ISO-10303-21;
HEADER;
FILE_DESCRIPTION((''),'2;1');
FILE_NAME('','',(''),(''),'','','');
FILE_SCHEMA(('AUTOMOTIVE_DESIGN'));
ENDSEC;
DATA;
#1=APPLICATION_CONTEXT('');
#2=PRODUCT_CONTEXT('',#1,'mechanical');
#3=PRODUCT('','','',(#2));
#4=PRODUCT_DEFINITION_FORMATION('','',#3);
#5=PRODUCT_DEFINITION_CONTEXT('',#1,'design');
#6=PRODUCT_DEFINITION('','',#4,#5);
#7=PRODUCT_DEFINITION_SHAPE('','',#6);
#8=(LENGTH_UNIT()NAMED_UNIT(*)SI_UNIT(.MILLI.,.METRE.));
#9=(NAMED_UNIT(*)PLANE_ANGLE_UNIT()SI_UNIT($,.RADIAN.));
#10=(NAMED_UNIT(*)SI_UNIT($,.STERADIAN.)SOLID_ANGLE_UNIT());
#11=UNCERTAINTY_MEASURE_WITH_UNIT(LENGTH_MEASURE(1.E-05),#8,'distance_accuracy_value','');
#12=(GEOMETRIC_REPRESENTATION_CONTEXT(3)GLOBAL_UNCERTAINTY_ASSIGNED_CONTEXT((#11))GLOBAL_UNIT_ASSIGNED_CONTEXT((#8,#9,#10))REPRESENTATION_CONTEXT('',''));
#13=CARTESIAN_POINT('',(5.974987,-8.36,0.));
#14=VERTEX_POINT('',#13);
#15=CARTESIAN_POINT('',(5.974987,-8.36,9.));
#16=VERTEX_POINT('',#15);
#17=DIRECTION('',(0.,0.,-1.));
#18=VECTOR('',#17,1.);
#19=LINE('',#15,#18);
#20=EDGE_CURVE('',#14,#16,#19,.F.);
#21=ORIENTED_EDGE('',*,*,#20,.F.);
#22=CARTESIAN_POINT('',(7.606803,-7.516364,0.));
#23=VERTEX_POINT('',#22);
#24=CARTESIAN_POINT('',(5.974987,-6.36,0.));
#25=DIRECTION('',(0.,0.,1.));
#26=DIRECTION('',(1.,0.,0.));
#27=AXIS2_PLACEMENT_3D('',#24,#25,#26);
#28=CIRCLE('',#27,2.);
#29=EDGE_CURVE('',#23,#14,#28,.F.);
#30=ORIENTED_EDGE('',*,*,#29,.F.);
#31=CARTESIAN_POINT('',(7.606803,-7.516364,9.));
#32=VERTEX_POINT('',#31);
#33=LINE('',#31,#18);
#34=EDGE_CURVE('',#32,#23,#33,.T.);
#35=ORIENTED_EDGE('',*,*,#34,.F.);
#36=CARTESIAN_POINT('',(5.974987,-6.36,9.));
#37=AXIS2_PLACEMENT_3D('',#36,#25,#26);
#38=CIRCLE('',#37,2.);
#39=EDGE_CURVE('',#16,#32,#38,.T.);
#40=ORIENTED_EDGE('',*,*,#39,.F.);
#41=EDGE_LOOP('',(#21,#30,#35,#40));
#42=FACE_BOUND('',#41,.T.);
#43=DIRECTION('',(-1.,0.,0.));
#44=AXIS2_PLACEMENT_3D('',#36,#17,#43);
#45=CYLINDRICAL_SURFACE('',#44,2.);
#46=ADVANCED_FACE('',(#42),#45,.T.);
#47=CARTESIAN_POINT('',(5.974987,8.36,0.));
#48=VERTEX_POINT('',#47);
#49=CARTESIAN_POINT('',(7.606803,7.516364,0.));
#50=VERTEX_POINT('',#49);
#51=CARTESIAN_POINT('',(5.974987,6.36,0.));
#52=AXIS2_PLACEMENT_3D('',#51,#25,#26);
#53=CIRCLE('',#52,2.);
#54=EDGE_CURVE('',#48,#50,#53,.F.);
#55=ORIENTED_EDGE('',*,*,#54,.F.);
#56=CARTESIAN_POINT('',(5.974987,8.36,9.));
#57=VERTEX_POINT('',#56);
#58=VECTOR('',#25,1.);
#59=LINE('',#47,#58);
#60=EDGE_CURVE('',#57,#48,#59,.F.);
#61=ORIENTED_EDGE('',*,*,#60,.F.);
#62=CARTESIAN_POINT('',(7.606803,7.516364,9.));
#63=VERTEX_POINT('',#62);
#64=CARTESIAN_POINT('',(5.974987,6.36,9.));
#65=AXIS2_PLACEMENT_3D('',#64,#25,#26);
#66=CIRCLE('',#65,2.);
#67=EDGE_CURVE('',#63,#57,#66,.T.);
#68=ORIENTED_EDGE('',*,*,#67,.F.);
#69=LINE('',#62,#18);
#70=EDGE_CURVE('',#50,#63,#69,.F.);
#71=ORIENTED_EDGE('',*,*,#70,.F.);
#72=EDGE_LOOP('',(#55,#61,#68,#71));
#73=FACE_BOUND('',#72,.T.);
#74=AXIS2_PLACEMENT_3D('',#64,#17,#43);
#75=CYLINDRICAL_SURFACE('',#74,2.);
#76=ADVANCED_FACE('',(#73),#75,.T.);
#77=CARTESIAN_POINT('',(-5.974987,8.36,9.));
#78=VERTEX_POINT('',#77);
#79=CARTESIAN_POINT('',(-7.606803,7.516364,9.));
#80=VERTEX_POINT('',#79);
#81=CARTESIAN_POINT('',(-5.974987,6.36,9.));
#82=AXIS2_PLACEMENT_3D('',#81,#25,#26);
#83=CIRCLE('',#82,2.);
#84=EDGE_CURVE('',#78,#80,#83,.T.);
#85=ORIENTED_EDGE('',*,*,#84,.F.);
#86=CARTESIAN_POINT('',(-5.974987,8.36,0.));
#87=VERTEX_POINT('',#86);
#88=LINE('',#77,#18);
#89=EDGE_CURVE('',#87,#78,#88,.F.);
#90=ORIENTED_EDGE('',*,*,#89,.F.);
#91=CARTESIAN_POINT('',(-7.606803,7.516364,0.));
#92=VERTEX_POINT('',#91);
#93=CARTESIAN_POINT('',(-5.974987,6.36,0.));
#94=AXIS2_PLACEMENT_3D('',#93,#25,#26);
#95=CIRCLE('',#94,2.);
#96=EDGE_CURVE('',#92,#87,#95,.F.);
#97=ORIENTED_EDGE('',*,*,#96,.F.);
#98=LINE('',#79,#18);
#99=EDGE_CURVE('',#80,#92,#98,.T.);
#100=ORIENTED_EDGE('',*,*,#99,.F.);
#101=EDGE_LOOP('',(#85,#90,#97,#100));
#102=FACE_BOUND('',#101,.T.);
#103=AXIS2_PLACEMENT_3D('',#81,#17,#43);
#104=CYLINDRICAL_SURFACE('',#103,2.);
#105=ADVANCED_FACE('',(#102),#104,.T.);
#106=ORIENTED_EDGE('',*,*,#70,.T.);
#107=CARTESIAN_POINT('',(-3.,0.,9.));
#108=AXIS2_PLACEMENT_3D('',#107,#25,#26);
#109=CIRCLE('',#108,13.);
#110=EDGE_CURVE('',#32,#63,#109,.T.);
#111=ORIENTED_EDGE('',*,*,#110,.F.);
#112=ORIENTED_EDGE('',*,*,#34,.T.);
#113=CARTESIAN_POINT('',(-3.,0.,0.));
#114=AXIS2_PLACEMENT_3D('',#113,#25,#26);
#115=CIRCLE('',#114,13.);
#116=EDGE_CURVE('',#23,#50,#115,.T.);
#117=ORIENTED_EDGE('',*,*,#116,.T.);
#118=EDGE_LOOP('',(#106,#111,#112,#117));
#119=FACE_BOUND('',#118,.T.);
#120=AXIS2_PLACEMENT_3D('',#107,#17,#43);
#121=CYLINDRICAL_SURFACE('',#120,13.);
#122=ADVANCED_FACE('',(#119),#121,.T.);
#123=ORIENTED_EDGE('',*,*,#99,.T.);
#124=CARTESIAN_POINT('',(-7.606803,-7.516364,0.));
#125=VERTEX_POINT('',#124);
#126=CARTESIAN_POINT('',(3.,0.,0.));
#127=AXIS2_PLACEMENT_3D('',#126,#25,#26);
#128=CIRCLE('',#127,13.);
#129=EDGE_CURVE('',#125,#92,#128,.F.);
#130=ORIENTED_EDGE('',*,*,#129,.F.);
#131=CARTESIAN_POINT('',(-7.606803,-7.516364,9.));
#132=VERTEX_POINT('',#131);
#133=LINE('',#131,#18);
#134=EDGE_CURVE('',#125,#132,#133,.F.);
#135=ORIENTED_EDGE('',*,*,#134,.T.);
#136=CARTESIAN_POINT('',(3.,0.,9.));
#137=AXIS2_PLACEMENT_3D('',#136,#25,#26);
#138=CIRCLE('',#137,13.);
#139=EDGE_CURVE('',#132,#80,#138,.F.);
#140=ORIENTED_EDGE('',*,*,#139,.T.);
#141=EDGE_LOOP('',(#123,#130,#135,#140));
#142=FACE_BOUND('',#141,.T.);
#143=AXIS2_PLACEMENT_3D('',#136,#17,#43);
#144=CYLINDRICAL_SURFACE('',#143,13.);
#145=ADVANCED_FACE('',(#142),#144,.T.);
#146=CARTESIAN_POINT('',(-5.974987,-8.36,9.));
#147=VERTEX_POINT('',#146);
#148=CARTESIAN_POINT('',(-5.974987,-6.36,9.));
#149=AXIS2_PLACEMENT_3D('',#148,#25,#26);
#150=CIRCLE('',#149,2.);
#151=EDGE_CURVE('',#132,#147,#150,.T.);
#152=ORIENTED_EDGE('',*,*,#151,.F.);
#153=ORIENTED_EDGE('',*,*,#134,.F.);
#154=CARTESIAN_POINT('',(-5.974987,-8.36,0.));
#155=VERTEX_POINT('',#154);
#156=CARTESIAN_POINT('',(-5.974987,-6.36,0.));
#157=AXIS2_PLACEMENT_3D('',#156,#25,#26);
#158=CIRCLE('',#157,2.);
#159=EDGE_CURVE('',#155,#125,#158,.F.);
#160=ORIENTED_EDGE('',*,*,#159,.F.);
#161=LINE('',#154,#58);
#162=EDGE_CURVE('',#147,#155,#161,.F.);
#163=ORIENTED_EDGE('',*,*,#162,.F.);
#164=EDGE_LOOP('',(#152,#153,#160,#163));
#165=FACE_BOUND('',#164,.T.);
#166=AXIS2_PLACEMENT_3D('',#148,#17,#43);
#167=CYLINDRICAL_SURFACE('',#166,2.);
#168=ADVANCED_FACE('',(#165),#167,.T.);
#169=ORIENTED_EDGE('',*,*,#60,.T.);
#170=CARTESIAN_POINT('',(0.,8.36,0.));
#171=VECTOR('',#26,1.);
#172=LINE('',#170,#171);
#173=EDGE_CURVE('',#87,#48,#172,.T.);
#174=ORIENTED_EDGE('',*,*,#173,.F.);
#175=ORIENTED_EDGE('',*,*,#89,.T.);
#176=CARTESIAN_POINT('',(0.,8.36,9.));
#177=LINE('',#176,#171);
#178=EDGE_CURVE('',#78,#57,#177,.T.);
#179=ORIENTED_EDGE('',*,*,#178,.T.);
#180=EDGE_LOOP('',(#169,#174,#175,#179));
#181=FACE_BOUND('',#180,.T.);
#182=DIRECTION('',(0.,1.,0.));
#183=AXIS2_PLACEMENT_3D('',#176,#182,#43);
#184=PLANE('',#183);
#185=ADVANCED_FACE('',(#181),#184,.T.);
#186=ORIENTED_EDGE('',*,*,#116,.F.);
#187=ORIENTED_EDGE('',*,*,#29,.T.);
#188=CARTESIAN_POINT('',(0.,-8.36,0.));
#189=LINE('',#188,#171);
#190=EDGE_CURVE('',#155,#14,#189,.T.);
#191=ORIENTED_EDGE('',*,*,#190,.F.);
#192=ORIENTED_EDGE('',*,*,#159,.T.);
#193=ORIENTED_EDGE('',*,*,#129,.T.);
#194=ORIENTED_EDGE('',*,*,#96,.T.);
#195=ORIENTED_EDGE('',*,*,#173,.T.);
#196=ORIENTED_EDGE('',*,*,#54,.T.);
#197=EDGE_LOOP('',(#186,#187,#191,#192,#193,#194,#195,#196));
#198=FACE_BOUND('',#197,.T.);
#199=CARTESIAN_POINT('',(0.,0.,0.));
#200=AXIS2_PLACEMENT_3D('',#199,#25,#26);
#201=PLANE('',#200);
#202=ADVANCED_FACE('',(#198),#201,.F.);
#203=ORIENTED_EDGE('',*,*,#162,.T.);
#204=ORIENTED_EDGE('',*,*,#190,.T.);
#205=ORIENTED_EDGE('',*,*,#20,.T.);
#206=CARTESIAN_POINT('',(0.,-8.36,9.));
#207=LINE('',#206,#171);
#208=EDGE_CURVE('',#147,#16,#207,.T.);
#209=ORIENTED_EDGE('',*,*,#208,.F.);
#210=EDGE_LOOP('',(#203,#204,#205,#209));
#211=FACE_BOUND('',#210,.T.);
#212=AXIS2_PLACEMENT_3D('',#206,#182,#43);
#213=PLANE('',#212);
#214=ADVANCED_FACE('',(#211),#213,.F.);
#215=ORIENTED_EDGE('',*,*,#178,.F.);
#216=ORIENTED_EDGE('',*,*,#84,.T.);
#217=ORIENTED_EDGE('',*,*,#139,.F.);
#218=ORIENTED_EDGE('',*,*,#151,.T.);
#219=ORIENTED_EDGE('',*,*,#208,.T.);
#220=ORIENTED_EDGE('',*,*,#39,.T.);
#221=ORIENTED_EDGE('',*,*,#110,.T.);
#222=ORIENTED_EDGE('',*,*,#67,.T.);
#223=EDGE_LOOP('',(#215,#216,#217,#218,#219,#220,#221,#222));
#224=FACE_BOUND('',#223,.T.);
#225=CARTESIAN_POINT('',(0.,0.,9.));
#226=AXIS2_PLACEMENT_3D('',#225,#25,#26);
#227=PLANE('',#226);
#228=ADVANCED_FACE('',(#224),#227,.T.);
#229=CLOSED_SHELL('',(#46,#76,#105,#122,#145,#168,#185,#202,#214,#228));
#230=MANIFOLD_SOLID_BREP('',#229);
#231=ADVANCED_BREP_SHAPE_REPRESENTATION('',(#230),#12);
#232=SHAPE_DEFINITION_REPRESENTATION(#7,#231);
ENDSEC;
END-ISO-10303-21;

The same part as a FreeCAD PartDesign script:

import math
import FreeCAD as App
import Part
import Sketcher
from FreeCAD import Vector
Q = App.Units.Quantity


def edges_at(feature, points):
    """Names of the edges that pass closest to the given points."""
    edges = feature.Shape.Edges
    near = lambda p: min(range(len(edges)), key=lambda i: edges[i].distToShape(Part.Vertex(*p))[0])
    return sorted({f"Edge{near(p) + 1}" for p in points})

doc = App.newDocument("Part")
params = doc.addObject("Spreadsheet::Sheet", "Params")
for row, (alias, value) in enumerate([
    ("sketch1_radius", "13 mm"),
    ("pad1_length", "9 mm"),
    ("fillet_radius", "2 mm"),
    ("fillet2_radius", "2 mm"),
], start=1):
    params.set(f"A{row}", alias)
    params.set(f"B{row}", "=" + value)
    params.setAlias(f"B{row}", alias)

body = doc.addObject("PartDesign::Body", "Body")

# Sketch on XY plane
sketch1 = body.newObject("Sketcher::SketchObject", "Sketch")
sketch1.AttachmentSupport = (doc.getObject("XY_Plane"), [""])
sketch1.MapMode = "FlatFace"
sketch1.addGeometry([
    Part.ArcOfCircle(Part.Circle(Vector(3, 0, 0), Vector(0, 0, 1), 13), math.radians(140), math.radians(180)),  # 0
    Part.ArcOfCircle(Part.Circle(Vector(3, 0, 0), Vector(0, 0, 1), 13), math.radians(-180), math.radians(-140)),  # 1
    Part.LineSegment(Vector(-7, -8, 0), Vector(7, -8, 0)),  # 2
    Part.ArcOfCircle(Part.Circle(Vector(-3, 0, 0), Vector(0, 0, 1), 13), math.radians(-40), math.radians(0)),  # 3
    Part.ArcOfCircle(Part.Circle(Vector(-3, 0, 0), Vector(0, 0, 1), 13), math.radians(0), math.radians(40)),  # 4
    Part.LineSegment(Vector(7, 8, 0), Vector(-7, 8, 0)),  # 5
], False)
sketch1.addConstraint([
    Sketcher.Constraint("Tangent", 0, 2, 1, 1),
    Sketcher.Constraint("Coincident", 1, 2, 2, 1),
    Sketcher.Constraint("Coincident", 2, 2, 3, 1),
    Sketcher.Constraint("Tangent", 3, 2, 4, 1),
    Sketcher.Constraint("Coincident", 4, 2, 5, 1),
    Sketcher.Constraint("Coincident", 5, 2, 0, 1),
    Sketcher.Constraint("Horizontal", 2),
    Sketcher.Constraint("Horizontal", 5),
    Sketcher.Constraint("Equal", 0, 1),
    Sketcher.Constraint("Equal", 1, 3),
    Sketcher.Constraint("Equal", 3, 4),
    Sketcher.Constraint("Symmetric", 0, 3, 3, 3, -1, 1),
    Sketcher.Constraint("Symmetric", 2, 2, 4, 2, -1),
    Sketcher.Constraint("PointOnObject", 0, 2, -1),
    Sketcher.Constraint("PointOnObject", 3, 2, -1),
    Sketcher.Constraint("Radius", 0, Q("13 mm")),
    Sketcher.Constraint("DistanceX", -1, 1, 0, 3, Q("3 mm")),
    Sketcher.Constraint("DistanceY", 1, 2, -1, 1, Q("8.36 mm")),
])
sketch1.setExpression("Constraints[15]", "Params.sketch1_radius")
pad1 = body.newObject("PartDesign::Pad", "Pad")
pad1.Profile = sketch1
pad1.setExpression("Length", "Params.pad1_length")
doc.recompute()

fillet = body.newObject("PartDesign::Fillet", "Fillet")
fillet.Base = (pad1, edges_at(pad1, [(-6.955, 8.36, 4.5), (6.955, 8.36, 4.5)]))
fillet.setExpression("Radius", "Params.fillet_radius")
doc.recompute()

fillet2 = body.newObject("PartDesign::Fillet", "Fillet001")
fillet2.Base = (fillet, edges_at(fillet, [(6.955, -8.36, 4.5), (-6.955, -8.36, 4.5)]))
fillet2.setExpression("Radius", "Params.fillet2_radius")

doc.recompute()
